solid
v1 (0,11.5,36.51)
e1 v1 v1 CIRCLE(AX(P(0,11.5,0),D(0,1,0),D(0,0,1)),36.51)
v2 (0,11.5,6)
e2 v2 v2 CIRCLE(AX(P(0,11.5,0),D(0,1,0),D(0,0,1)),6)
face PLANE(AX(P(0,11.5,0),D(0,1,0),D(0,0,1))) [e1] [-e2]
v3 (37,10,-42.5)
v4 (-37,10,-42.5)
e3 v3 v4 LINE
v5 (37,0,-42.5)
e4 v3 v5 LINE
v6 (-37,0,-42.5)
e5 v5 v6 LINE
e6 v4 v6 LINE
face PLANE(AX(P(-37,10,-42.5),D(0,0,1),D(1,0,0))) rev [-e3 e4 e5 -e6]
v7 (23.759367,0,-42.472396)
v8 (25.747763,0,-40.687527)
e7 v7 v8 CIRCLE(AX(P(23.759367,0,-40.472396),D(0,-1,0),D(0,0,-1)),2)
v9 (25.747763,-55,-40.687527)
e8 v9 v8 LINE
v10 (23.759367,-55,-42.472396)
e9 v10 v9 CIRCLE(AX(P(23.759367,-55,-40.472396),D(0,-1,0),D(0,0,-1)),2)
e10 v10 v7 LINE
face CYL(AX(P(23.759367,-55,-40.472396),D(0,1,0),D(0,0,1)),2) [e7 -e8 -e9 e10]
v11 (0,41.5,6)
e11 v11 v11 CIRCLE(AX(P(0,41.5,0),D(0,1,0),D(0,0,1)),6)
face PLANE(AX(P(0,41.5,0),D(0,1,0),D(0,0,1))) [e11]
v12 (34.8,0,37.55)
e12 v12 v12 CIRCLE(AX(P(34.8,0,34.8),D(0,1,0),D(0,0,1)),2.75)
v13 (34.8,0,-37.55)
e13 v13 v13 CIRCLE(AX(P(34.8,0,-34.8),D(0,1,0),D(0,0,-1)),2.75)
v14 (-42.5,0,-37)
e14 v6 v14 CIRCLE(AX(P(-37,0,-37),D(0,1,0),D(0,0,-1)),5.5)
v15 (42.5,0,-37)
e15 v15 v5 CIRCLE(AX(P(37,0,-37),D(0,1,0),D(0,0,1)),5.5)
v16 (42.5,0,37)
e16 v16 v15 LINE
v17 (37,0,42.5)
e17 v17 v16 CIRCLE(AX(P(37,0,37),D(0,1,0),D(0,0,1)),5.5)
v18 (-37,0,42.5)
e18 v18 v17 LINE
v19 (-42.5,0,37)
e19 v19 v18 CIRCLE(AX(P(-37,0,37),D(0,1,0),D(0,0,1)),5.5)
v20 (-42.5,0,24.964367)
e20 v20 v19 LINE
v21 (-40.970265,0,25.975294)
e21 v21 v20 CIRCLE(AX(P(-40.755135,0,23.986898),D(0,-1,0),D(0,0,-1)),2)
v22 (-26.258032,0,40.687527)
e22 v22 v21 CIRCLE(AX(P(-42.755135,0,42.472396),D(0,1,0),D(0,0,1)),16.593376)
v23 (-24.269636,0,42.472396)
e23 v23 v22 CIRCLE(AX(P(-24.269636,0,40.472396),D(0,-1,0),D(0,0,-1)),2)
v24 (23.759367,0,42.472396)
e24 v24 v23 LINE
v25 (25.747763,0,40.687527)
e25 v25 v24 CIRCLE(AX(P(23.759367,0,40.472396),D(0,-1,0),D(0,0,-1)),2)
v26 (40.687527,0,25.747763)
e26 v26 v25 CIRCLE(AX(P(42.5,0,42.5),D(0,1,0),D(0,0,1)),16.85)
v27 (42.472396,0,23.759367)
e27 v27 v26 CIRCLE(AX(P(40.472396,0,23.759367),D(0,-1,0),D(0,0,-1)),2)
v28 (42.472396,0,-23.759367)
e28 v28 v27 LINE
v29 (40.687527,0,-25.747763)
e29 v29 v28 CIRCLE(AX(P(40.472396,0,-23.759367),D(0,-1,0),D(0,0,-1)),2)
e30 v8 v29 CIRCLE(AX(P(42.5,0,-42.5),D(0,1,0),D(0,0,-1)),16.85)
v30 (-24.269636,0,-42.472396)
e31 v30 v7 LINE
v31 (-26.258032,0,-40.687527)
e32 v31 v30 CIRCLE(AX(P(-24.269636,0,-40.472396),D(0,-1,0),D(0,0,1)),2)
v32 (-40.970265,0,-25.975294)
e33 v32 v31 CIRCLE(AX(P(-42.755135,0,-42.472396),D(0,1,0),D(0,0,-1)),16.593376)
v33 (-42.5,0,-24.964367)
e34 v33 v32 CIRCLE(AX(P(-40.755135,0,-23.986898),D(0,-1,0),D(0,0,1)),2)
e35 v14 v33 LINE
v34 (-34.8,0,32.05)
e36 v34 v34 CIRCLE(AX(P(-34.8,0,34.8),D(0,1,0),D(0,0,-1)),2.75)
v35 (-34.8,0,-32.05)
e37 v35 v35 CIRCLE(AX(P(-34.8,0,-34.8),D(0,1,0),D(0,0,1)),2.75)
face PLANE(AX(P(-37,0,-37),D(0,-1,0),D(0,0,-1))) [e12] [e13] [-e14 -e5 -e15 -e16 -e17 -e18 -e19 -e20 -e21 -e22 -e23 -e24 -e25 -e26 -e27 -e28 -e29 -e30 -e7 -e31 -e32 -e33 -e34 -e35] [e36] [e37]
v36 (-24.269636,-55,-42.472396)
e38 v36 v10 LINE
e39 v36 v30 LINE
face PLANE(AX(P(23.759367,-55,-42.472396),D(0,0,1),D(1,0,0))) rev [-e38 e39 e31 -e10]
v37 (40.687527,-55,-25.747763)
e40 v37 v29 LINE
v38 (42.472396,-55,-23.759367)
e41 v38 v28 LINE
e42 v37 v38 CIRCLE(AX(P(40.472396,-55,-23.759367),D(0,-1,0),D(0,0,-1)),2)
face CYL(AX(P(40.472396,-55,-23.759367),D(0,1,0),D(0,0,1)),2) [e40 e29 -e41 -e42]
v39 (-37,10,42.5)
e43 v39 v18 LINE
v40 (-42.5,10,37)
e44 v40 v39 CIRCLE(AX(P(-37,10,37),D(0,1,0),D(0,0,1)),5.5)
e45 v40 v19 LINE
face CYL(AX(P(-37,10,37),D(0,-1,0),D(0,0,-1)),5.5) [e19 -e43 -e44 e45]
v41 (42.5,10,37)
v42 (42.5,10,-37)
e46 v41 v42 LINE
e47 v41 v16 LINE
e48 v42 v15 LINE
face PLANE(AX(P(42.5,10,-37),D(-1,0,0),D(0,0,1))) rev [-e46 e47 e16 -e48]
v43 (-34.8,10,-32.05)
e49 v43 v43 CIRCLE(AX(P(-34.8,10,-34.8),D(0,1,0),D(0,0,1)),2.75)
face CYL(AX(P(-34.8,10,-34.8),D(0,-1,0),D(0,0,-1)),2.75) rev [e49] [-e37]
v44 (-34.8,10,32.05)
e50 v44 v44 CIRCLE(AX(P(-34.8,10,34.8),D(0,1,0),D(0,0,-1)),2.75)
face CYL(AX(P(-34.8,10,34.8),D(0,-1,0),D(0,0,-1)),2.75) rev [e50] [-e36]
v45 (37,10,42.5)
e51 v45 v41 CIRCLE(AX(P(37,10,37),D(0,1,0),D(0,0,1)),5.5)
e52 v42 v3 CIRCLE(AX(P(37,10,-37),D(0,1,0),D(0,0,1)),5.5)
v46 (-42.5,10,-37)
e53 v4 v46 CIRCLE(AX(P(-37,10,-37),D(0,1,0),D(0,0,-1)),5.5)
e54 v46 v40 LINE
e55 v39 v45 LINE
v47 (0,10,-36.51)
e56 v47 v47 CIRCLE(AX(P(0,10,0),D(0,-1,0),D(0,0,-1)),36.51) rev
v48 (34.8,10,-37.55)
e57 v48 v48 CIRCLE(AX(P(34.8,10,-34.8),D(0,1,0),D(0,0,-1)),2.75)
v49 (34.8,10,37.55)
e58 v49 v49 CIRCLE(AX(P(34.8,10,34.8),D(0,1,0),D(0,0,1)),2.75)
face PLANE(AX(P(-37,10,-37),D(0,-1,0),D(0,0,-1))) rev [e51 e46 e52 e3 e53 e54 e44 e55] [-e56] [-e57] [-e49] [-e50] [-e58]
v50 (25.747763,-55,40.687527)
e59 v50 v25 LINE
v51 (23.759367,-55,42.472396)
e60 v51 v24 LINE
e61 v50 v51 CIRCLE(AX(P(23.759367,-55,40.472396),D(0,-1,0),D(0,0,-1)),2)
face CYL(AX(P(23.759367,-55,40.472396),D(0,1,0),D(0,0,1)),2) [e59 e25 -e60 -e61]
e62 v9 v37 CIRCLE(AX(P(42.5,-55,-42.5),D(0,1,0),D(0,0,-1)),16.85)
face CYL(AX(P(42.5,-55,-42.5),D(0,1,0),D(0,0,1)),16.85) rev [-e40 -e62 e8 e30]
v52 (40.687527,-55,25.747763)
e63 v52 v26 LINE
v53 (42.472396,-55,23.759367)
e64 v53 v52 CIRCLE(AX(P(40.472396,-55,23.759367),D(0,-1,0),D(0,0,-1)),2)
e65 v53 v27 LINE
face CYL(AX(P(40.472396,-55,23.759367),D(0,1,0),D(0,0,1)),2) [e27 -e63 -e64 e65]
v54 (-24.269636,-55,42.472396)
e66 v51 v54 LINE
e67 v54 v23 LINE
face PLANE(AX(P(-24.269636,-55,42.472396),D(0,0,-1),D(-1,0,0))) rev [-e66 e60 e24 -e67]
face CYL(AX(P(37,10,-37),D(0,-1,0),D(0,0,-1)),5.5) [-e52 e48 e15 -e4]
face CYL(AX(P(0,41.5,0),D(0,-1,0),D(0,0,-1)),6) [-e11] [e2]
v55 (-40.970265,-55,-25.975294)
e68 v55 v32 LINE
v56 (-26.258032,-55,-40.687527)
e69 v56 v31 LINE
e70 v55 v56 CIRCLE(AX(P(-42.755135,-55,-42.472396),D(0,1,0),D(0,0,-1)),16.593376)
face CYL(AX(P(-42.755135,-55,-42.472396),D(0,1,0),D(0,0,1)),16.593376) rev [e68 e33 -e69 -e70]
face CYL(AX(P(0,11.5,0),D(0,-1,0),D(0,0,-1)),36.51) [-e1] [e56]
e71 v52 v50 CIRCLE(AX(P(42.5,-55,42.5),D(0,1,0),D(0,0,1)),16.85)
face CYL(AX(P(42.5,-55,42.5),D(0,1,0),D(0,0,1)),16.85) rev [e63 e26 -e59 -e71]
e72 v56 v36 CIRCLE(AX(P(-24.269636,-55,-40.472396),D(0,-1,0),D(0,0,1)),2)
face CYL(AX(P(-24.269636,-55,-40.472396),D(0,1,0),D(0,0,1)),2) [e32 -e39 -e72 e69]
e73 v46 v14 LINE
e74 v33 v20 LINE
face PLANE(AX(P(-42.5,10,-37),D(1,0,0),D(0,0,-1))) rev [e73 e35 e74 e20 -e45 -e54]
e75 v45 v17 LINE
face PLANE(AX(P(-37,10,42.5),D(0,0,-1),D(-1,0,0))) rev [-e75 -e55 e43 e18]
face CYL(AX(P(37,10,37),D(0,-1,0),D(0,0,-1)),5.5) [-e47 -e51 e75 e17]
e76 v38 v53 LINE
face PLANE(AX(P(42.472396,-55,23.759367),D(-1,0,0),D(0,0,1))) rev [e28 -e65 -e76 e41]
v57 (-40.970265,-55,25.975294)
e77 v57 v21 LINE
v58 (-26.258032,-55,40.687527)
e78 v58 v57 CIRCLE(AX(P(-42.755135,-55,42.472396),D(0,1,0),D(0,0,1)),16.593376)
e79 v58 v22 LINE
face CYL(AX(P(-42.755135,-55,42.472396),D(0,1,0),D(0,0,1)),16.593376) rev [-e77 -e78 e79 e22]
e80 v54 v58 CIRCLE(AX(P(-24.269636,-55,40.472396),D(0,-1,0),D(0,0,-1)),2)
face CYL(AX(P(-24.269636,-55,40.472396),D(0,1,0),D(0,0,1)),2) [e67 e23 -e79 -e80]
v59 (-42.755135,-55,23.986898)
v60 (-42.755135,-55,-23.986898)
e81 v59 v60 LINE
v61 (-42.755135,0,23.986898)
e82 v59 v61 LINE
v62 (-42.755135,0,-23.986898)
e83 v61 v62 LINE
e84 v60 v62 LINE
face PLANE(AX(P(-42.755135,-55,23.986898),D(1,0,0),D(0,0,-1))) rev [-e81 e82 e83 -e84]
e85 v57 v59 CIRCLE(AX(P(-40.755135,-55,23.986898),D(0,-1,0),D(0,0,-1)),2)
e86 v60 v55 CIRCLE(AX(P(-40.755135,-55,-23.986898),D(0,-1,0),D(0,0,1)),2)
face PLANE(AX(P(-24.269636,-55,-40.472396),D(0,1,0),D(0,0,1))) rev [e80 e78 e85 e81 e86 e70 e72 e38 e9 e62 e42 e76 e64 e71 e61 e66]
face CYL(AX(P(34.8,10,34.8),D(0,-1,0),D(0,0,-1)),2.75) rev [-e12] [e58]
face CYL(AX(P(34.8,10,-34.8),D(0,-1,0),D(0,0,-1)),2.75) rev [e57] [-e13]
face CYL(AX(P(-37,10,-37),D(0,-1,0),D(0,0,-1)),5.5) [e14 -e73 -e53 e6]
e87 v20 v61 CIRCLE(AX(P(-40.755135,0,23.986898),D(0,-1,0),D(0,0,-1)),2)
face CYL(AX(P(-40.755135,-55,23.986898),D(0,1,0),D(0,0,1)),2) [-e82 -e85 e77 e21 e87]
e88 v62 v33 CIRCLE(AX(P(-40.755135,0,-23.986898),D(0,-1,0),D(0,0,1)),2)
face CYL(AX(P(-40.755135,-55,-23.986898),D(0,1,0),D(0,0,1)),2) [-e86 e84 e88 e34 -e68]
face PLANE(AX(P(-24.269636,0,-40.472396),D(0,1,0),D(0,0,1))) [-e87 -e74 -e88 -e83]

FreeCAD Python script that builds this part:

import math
import FreeCAD as App
import Part
import Sketcher
Q = App.Units.Quantity

doc = App.newDocument("Part")
body = doc.addObject("PartDesign::Body", "Body")

sketch1 = body.newObject("Sketcher::SketchObject", "Sketch")
sketch1.AttachmentSupport = (doc.getObject("XZ_Plane"), [""])
sketch1.MapMode = "FlatFace"
sketch1.addGeometry([
    Part.LineSegment(App.Vector(37, -42.5, 0), App.Vector(-37, -42.5, 0)),
    Part.ArcOfCircle(Part.Circle(App.Vector(-37, -37, 0), App.Vector(0, 0, 1), 5.5), math.radians(180), math.radians(270)),
    Part.LineSegment(App.Vector(-42.5, -37, 0), App.Vector(-42.5, 37, 0)),
    Part.ArcOfCircle(Part.Circle(App.Vector(-37, 37, 0), App.Vector(0, 0, 1), 5.5), math.radians(90), math.radians(180)),
    Part.LineSegment(App.Vector(-37, 42.5, 0), App.Vector(37, 42.5, 0)),
    Part.ArcOfCircle(Part.Circle(App.Vector(37, 37, 0), App.Vector(0, 0, 1), 5.5), math.radians(0), math.radians(90)),
    Part.LineSegment(App.Vector(42.5, 37, 0), App.Vector(42.5, -37, 0)),
    Part.ArcOfCircle(Part.Circle(App.Vector(37, -37, 0), App.Vector(0, 0, 1), 5.5), math.radians(-90), math.radians(0)),
    Part.Circle(App.Vector(34.8, 34.8, 0), App.Vector(0, 0, 1), 2.8),
    Part.Circle(App.Vector(-34.8, 34.8, 0), App.Vector(0, 0, 1), 2.8),
    Part.Circle(App.Vector(34.8, -34.8, 0), App.Vector(0, 0, 1), 2.8),
    Part.Circle(App.Vector(-34.8, -34.8, 0), App.Vector(0, 0, 1), 2.8),
], False)
sketch1.addConstraint([
    Sketcher.Constraint("Tangent", 0, 2, 1, 2),
    Sketcher.Constraint("Tangent", 1, 1, 2, 1),
    Sketcher.Constraint("Tangent", 2, 2, 3, 2),
    Sketcher.Constraint("Tangent", 3, 1, 4, 1),
    Sketcher.Constraint("Tangent", 4, 2, 5, 2),
    Sketcher.Constraint("Tangent", 5, 1, 6, 1),
    Sketcher.Constraint("Tangent", 6, 2, 7, 2),
    Sketcher.Constraint("Tangent", 7, 1, 0, 1),
    Sketcher.Constraint("Horizontal", 0),
    Sketcher.Constraint("Vertical", 2),
    Sketcher.Constraint("Horizontal", 4),
    Sketcher.Constraint("Vertical", 6),
    Sketcher.Constraint("Equal", 1, 3),
    Sketcher.Constraint("Equal", 3, 5),
    Sketcher.Constraint("Equal", 5, 7),
    Sketcher.Constraint("Equal", 8, 9),
    Sketcher.Constraint("Equal", 9, 10),
    Sketcher.Constraint("Equal", 10, 11),
    Sketcher.Constraint("Symmetric", 1, 3, 5, 3, -1, 1),
    Sketcher.Constraint("Symmetric", 9, 3, 10, 3, -1, 1),
    Sketcher.Constraint("Symmetric", 8, 3, 11, 3, -1, 1),
    Sketcher.Constraint("Symmetric", 8, 3, 9, 3, -2),
    Sketcher.Constraint("Equal", 4, 2),
    Sketcher.Constraint("Diameter", 8, Q("5.5 mm")),
    Sketcher.Constraint("Radius", 1, Q("5.5 mm")),
    Sketcher.Constraint("DistanceX", 0, 2, 0, 1, Q("74 mm")),
    Sketcher.Constraint("DistanceX", -1, 1, 8, 3, Q("34.8 mm")),
    Sketcher.Constraint("DistanceY", -1, 1, 8, 3, Q("34.8 mm")),
])
pad1 = body.newObject("PartDesign::Pad", "Pad")
pad1.Profile = sketch1
pad1.Length = 10
pad1.Reversed = True

sketch2 = body.newObject("Sketcher::SketchObject", "Sketch001")
sketch2.AttachmentSupport = (doc.getObject("XZ_Plane"), [""])
sketch2.MapMode = "FlatFace"
sketch2.AttachmentOffset = App.Placement(App.Vector(0, 0, -10), App.Rotation())
sketch2.addGeometry(Part.Circle(App.Vector(0, 0, 0), App.Vector(0, 0, 1), 37), False)
sketch2.addConstraint([
    Sketcher.Constraint("Coincident", 0, 3, -1, 1),
    Sketcher.Constraint("Diameter", 0, Q("73.02 mm")),
])
pad2 = body.newObject("PartDesign::Pad", "Pad001")
pad2.Profile = sketch2
pad2.Length = 1.5
pad2.Reversed = True

sketch3 = body.newObject("Sketcher::SketchObject", "Sketch002")
sketch3.AttachmentSupport = (doc.getObject("XZ_Plane"), [""])
sketch3.MapMode = "FlatFace"
sketch3.AttachmentOffset = App.Placement(App.Vector(0, 0, -11.5), App.Rotation())
sketch3.addGeometry(Part.Circle(App.Vector(0, 0, 0), App.Vector(0, 0, 1), 6), False)
sketch3.addConstraint([
    Sketcher.Constraint("Coincident", 0, 3, -1, 1),
    Sketcher.Constraint("Diameter", 0, Q("12 mm")),
])
pad3 = body.newObject("PartDesign::Pad", "Pad002")
pad3.Profile = sketch3
pad3.Length = 30
pad3.Reversed = True

sketch4 = body.newObject("Sketcher::SketchObject", "Sketch003")
sketch4.AttachmentSupport = (doc.getObject("XZ_Plane"), [""])
sketch4.MapMode = "FlatFace"
sketch4.addGeometry([
    Part.LineSegment(App.Vector(-42.8, 24, 0), App.Vector(-42.8, -24, 0)),
    Part.ArcOfCircle(Part.Circle(App.Vector(-40.8, -24, 0), App.Vector(0, 0, 1), 2), math.radians(180), math.radians(264)),
    Part.ArcOfCircle(Part.Circle(App.Vector(-42.8, -42.5, 0), App.Vector(0, 0, 1), 16.6), math.radians(6), math.radians(84)),
    Part.ArcOfCircle(Part.Circle(App.Vector(-24.3, -40.5, 0), App.Vector(0, 0, 1), 2), math.radians(-174), math.radians(-90)),
    Part.LineSegment(App.Vector(-24.3, -42.5, 0), App.Vector(23.8, -42.5, 0)),
    Part.ArcOfCircle(Part.Circle(App.Vector(23.8, -40.5, 0), App.Vector(0, 0, 1), 2), math.radians(-90), math.radians(-6)),
    Part.ArcOfCircle(Part.Circle(App.Vector(42.5, -42.5, 0), App.Vector(0, 0, 1), 16.9), math.radians(96), math.radians(174)),
    Part.ArcOfCircle(Part.Circle(App.Vector(40.5, -23.8, 0), App.Vector(0, 0, 1), 2), math.radians(-84), math.radians(0)),
    Part.LineSegment(App.Vector(42.5, -23.8, 0), App.Vector(42.5, 23.8, 0)),
    Part.ArcOfCircle(Part.Circle(App.Vector(40.5, 23.8, 0), App.Vector(0, 0, 1), 2), math.radians(0), math.radians(84)),
    Part.ArcOfCircle(Part.Circle(App.Vector(42.5, 42.5, 0), App.Vector(0, 0, 1), 16.9), math.radians(-174), math.radians(-96)),
    Part.ArcOfCircle(Part.Circle(App.Vector(23.8, 40.5, 0), App.Vector(0, 0, 1), 2), math.radians(6), math.radians(90)),
    Part.LineSegment(App.Vector(23.8, 42.5, 0), App.Vector(-24.3, 42.5, 0)),
    Part.ArcOfCircle(Part.Circle(App.Vector(-24.3, 40.5, 0), App.Vector(0, 0, 1), 2), math.radians(90), math.radians(174)),
    Part.ArcOfCircle(Part.Circle(App.Vector(-42.8, 42.5, 0), App.Vector(0, 0, 1), 16.6), math.radians(-84), math.radians(-6)),
    Part.ArcOfCircle(Part.Circle(App.Vector(-40.8, 24, 0), App.Vector(0, 0, 1), 2), math.radians(96), math.radians(180)),
], False)
sketch4.addConstraint([
    Sketcher.Constraint("Tangent", 0, 2, 1, 1),
    Sketcher.Constraint("Tangent", 1, 2, 2, 2),
    Sketcher.Constraint("Tangent", 2, 1, 3, 1),
    Sketcher.Constraint("Tangent", 3, 2, 4, 1),
    Sketcher.Constraint("Tangent", 4, 2, 5, 1),
    Sketcher.Constraint("Tangent", 5, 2, 6, 2),
    Sketcher.Constraint("Tangent", 6, 1, 7, 1),
    Sketcher.Constraint("Tangent", 7, 2, 8, 1),
    Sketcher.Constraint("Tangent", 8, 2, 9, 1),
    Sketcher.Constraint("Tangent", 9, 2, 10, 2),
    Sketcher.Constraint("Tangent", 10, 1, 11, 1),
    Sketcher.Constraint("Tangent", 11, 2, 12, 1),
    Sketcher.Constraint("Tangent", 12, 2, 13, 1),
    Sketcher.Constraint("Tangent", 13, 2, 14, 2),
    Sketcher.Constraint("Tangent", 14, 1, 15, 1),
    Sketcher.Constraint("Tangent", 15, 2, 0, 1),
    Sketcher.Constraint("Vertical", 0),
    Sketcher.Constraint("Horizontal", 4),
    Sketcher.Constraint("Vertical", 8),
    Sketcher.Constraint("Horizontal", 12),
    Sketcher.Constraint("Equal", 1, 3),
    Sketcher.Constraint("Equal", 3, 5),
    Sketcher.Constraint("Equal", 5, 7),
    Sketcher.Constraint("Equal", 7, 9),
    Sketcher.Constraint("Equal", 6, 10),
    Sketcher.Constraint("Equal", 9, 11),
    Sketcher.Constraint("Equal", 11, 13),
    Sketcher.Constraint("Equal", 2, 14),
    Sketcher.Constraint("Equal", 13, 15),
    Sketcher.Constraint("Symmetric", 6, 3, 10, 3, -1),
    Sketcher.Constraint("Symmetric", 3, 3, 13, 3, -1),
    Sketcher.Constraint("Horizontal", 2, 3, 3, 2),
    Sketcher.Constraint("Horizontal", 2, 1, 5, 2),
    Sketcher.Constraint("Horizontal", 14, 3, 11, 2),
    Sketcher.Constraint("Vertical", 14, 3, 0, 2),
    Sketcher.Constraint("Radius", 1, Q("2 mm")),
    Sketcher.Constraint("Radius", 6, Q("16.85 mm")),
    Sketcher.Constraint("DistanceY", 6, 3, 10, 3, Q("85 mm")),
    Sketcher.Constraint("DistanceX", -1, 1, 6, 3, Q("42.5 mm")),
    Sketcher.Constraint("Radius", 2, Q("16.593376 mm")),
    Sketcher.Constraint("DistanceX", 2, 3, 5, 3, Q("66.514502 mm")),
    Sketcher.Constraint("DistanceY", 8, 1, 8, 2, Q("47.518734 mm")),
])
pad4 = body.newObject("PartDesign::Pad", "Pad003")
pad4.Profile = sketch4
pad4.Length = 55

doc.recompute()
